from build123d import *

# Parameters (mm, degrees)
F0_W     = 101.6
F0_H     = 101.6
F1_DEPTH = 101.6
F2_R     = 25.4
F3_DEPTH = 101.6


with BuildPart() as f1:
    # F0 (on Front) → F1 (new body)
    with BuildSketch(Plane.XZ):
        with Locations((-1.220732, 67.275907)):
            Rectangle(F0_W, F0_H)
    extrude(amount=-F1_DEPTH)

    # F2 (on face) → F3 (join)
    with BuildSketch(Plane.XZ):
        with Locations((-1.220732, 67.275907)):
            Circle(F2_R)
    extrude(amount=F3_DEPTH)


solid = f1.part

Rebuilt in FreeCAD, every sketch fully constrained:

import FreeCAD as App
import Part
import Sketcher
from FreeCAD import Vector
Q = App.Units.Quantity


def add_polygon(sketch, points):
    """Adds a closed chain of lines whose ends are joined by coincident constraints."""
    first, n = sketch.GeometryCount, len(points)
    for a, b in zip(points, points[1:] + points[:1]):
        sketch.addGeometry(Part.LineSegment(App.Vector(*a, 0), App.Vector(*b, 0)), False)
    for i in range(n):
        sketch.addConstraint(Sketcher.Constraint("Coincident", first + i, 2, first + (i + 1) % n, 1))

doc = App.newDocument("Part")
params = doc.addObject("Spreadsheet::Sheet", "Params")
for row, (alias, value) in enumerate([
    ("sketch1_width", "4 in"),
    ("pad1_length", "4 in"),
    ("sketch2_diameter", "2 in"),
    ("pad2_length", "4 in"),
], start=1):
    params.set(f"A{row}", alias)
    params.set(f"B{row}", "=" + value)
    params.setAlias(f"B{row}", alias)

body = doc.addObject("PartDesign::Body", "Body")

sketch1 = body.newObject("Sketcher::SketchObject", "Sketch")
sketch1.AttachmentSupport = (doc.getObject("XZ_Plane"), [""])
sketch1.MapMode = "FlatFace"
add_polygon(sketch1, [(-52, 118), (-52, 16), (50, 16), (50, 118)])
sketch1.addConstraint([
    Sketcher.Constraint("Vertical", 0),
    Sketcher.Constraint("Horizontal", 1),
    Sketcher.Constraint("Vertical", 2),
    Sketcher.Constraint("Horizontal", 3),
    Sketcher.Constraint("Equal", 3, 0),
    Sketcher.Constraint("DistanceX", 1, 1, 1, 2, Q("4 in")),
    Sketcher.Constraint("DistanceX", 0, 2, -1, 1, Q("52.020732 mm")),
    Sketcher.Constraint("DistanceY", -1, 1, 0, 2, Q("16.475907 mm")),
])
sketch1.setExpression("Constraints[9]", "Params.sketch1_width")
pad1 = body.newObject("PartDesign::Pad", "Pad")
pad1.Profile = sketch1
pad1.setExpression("Length", "Params.pad1_length")
pad1.Reversed = True

sketch2 = body.newObject("Sketcher::SketchObject", "Sketch001")
sketch2.AttachmentSupport = (doc.getObject("XZ_Plane"), [""])
sketch2.MapMode = "FlatFace"
sketch2.addGeometry(Part.Circle(Vector(-1, 67, 0), Vector(0, 0, 1), 25), False)
sketch2.addConstraint([
    Sketcher.Constraint("Diameter", 0, Q("2 in")),
    Sketcher.Constraint("DistanceX", 0, 3, -1, 1, Q("1.220732 mm")),
    Sketcher.Constraint("DistanceY", -1, 1, 0, 3, Q("67.275907 mm")),
])
sketch2.setExpression("Constraints[0]", "Params.sketch2_diameter")
pad2 = body.newObject("PartDesign::Pad", "Pad001")
pad2.Profile = sketch2
pad2.setExpression("Length", "Params.pad2_length")

doc.recompute()
